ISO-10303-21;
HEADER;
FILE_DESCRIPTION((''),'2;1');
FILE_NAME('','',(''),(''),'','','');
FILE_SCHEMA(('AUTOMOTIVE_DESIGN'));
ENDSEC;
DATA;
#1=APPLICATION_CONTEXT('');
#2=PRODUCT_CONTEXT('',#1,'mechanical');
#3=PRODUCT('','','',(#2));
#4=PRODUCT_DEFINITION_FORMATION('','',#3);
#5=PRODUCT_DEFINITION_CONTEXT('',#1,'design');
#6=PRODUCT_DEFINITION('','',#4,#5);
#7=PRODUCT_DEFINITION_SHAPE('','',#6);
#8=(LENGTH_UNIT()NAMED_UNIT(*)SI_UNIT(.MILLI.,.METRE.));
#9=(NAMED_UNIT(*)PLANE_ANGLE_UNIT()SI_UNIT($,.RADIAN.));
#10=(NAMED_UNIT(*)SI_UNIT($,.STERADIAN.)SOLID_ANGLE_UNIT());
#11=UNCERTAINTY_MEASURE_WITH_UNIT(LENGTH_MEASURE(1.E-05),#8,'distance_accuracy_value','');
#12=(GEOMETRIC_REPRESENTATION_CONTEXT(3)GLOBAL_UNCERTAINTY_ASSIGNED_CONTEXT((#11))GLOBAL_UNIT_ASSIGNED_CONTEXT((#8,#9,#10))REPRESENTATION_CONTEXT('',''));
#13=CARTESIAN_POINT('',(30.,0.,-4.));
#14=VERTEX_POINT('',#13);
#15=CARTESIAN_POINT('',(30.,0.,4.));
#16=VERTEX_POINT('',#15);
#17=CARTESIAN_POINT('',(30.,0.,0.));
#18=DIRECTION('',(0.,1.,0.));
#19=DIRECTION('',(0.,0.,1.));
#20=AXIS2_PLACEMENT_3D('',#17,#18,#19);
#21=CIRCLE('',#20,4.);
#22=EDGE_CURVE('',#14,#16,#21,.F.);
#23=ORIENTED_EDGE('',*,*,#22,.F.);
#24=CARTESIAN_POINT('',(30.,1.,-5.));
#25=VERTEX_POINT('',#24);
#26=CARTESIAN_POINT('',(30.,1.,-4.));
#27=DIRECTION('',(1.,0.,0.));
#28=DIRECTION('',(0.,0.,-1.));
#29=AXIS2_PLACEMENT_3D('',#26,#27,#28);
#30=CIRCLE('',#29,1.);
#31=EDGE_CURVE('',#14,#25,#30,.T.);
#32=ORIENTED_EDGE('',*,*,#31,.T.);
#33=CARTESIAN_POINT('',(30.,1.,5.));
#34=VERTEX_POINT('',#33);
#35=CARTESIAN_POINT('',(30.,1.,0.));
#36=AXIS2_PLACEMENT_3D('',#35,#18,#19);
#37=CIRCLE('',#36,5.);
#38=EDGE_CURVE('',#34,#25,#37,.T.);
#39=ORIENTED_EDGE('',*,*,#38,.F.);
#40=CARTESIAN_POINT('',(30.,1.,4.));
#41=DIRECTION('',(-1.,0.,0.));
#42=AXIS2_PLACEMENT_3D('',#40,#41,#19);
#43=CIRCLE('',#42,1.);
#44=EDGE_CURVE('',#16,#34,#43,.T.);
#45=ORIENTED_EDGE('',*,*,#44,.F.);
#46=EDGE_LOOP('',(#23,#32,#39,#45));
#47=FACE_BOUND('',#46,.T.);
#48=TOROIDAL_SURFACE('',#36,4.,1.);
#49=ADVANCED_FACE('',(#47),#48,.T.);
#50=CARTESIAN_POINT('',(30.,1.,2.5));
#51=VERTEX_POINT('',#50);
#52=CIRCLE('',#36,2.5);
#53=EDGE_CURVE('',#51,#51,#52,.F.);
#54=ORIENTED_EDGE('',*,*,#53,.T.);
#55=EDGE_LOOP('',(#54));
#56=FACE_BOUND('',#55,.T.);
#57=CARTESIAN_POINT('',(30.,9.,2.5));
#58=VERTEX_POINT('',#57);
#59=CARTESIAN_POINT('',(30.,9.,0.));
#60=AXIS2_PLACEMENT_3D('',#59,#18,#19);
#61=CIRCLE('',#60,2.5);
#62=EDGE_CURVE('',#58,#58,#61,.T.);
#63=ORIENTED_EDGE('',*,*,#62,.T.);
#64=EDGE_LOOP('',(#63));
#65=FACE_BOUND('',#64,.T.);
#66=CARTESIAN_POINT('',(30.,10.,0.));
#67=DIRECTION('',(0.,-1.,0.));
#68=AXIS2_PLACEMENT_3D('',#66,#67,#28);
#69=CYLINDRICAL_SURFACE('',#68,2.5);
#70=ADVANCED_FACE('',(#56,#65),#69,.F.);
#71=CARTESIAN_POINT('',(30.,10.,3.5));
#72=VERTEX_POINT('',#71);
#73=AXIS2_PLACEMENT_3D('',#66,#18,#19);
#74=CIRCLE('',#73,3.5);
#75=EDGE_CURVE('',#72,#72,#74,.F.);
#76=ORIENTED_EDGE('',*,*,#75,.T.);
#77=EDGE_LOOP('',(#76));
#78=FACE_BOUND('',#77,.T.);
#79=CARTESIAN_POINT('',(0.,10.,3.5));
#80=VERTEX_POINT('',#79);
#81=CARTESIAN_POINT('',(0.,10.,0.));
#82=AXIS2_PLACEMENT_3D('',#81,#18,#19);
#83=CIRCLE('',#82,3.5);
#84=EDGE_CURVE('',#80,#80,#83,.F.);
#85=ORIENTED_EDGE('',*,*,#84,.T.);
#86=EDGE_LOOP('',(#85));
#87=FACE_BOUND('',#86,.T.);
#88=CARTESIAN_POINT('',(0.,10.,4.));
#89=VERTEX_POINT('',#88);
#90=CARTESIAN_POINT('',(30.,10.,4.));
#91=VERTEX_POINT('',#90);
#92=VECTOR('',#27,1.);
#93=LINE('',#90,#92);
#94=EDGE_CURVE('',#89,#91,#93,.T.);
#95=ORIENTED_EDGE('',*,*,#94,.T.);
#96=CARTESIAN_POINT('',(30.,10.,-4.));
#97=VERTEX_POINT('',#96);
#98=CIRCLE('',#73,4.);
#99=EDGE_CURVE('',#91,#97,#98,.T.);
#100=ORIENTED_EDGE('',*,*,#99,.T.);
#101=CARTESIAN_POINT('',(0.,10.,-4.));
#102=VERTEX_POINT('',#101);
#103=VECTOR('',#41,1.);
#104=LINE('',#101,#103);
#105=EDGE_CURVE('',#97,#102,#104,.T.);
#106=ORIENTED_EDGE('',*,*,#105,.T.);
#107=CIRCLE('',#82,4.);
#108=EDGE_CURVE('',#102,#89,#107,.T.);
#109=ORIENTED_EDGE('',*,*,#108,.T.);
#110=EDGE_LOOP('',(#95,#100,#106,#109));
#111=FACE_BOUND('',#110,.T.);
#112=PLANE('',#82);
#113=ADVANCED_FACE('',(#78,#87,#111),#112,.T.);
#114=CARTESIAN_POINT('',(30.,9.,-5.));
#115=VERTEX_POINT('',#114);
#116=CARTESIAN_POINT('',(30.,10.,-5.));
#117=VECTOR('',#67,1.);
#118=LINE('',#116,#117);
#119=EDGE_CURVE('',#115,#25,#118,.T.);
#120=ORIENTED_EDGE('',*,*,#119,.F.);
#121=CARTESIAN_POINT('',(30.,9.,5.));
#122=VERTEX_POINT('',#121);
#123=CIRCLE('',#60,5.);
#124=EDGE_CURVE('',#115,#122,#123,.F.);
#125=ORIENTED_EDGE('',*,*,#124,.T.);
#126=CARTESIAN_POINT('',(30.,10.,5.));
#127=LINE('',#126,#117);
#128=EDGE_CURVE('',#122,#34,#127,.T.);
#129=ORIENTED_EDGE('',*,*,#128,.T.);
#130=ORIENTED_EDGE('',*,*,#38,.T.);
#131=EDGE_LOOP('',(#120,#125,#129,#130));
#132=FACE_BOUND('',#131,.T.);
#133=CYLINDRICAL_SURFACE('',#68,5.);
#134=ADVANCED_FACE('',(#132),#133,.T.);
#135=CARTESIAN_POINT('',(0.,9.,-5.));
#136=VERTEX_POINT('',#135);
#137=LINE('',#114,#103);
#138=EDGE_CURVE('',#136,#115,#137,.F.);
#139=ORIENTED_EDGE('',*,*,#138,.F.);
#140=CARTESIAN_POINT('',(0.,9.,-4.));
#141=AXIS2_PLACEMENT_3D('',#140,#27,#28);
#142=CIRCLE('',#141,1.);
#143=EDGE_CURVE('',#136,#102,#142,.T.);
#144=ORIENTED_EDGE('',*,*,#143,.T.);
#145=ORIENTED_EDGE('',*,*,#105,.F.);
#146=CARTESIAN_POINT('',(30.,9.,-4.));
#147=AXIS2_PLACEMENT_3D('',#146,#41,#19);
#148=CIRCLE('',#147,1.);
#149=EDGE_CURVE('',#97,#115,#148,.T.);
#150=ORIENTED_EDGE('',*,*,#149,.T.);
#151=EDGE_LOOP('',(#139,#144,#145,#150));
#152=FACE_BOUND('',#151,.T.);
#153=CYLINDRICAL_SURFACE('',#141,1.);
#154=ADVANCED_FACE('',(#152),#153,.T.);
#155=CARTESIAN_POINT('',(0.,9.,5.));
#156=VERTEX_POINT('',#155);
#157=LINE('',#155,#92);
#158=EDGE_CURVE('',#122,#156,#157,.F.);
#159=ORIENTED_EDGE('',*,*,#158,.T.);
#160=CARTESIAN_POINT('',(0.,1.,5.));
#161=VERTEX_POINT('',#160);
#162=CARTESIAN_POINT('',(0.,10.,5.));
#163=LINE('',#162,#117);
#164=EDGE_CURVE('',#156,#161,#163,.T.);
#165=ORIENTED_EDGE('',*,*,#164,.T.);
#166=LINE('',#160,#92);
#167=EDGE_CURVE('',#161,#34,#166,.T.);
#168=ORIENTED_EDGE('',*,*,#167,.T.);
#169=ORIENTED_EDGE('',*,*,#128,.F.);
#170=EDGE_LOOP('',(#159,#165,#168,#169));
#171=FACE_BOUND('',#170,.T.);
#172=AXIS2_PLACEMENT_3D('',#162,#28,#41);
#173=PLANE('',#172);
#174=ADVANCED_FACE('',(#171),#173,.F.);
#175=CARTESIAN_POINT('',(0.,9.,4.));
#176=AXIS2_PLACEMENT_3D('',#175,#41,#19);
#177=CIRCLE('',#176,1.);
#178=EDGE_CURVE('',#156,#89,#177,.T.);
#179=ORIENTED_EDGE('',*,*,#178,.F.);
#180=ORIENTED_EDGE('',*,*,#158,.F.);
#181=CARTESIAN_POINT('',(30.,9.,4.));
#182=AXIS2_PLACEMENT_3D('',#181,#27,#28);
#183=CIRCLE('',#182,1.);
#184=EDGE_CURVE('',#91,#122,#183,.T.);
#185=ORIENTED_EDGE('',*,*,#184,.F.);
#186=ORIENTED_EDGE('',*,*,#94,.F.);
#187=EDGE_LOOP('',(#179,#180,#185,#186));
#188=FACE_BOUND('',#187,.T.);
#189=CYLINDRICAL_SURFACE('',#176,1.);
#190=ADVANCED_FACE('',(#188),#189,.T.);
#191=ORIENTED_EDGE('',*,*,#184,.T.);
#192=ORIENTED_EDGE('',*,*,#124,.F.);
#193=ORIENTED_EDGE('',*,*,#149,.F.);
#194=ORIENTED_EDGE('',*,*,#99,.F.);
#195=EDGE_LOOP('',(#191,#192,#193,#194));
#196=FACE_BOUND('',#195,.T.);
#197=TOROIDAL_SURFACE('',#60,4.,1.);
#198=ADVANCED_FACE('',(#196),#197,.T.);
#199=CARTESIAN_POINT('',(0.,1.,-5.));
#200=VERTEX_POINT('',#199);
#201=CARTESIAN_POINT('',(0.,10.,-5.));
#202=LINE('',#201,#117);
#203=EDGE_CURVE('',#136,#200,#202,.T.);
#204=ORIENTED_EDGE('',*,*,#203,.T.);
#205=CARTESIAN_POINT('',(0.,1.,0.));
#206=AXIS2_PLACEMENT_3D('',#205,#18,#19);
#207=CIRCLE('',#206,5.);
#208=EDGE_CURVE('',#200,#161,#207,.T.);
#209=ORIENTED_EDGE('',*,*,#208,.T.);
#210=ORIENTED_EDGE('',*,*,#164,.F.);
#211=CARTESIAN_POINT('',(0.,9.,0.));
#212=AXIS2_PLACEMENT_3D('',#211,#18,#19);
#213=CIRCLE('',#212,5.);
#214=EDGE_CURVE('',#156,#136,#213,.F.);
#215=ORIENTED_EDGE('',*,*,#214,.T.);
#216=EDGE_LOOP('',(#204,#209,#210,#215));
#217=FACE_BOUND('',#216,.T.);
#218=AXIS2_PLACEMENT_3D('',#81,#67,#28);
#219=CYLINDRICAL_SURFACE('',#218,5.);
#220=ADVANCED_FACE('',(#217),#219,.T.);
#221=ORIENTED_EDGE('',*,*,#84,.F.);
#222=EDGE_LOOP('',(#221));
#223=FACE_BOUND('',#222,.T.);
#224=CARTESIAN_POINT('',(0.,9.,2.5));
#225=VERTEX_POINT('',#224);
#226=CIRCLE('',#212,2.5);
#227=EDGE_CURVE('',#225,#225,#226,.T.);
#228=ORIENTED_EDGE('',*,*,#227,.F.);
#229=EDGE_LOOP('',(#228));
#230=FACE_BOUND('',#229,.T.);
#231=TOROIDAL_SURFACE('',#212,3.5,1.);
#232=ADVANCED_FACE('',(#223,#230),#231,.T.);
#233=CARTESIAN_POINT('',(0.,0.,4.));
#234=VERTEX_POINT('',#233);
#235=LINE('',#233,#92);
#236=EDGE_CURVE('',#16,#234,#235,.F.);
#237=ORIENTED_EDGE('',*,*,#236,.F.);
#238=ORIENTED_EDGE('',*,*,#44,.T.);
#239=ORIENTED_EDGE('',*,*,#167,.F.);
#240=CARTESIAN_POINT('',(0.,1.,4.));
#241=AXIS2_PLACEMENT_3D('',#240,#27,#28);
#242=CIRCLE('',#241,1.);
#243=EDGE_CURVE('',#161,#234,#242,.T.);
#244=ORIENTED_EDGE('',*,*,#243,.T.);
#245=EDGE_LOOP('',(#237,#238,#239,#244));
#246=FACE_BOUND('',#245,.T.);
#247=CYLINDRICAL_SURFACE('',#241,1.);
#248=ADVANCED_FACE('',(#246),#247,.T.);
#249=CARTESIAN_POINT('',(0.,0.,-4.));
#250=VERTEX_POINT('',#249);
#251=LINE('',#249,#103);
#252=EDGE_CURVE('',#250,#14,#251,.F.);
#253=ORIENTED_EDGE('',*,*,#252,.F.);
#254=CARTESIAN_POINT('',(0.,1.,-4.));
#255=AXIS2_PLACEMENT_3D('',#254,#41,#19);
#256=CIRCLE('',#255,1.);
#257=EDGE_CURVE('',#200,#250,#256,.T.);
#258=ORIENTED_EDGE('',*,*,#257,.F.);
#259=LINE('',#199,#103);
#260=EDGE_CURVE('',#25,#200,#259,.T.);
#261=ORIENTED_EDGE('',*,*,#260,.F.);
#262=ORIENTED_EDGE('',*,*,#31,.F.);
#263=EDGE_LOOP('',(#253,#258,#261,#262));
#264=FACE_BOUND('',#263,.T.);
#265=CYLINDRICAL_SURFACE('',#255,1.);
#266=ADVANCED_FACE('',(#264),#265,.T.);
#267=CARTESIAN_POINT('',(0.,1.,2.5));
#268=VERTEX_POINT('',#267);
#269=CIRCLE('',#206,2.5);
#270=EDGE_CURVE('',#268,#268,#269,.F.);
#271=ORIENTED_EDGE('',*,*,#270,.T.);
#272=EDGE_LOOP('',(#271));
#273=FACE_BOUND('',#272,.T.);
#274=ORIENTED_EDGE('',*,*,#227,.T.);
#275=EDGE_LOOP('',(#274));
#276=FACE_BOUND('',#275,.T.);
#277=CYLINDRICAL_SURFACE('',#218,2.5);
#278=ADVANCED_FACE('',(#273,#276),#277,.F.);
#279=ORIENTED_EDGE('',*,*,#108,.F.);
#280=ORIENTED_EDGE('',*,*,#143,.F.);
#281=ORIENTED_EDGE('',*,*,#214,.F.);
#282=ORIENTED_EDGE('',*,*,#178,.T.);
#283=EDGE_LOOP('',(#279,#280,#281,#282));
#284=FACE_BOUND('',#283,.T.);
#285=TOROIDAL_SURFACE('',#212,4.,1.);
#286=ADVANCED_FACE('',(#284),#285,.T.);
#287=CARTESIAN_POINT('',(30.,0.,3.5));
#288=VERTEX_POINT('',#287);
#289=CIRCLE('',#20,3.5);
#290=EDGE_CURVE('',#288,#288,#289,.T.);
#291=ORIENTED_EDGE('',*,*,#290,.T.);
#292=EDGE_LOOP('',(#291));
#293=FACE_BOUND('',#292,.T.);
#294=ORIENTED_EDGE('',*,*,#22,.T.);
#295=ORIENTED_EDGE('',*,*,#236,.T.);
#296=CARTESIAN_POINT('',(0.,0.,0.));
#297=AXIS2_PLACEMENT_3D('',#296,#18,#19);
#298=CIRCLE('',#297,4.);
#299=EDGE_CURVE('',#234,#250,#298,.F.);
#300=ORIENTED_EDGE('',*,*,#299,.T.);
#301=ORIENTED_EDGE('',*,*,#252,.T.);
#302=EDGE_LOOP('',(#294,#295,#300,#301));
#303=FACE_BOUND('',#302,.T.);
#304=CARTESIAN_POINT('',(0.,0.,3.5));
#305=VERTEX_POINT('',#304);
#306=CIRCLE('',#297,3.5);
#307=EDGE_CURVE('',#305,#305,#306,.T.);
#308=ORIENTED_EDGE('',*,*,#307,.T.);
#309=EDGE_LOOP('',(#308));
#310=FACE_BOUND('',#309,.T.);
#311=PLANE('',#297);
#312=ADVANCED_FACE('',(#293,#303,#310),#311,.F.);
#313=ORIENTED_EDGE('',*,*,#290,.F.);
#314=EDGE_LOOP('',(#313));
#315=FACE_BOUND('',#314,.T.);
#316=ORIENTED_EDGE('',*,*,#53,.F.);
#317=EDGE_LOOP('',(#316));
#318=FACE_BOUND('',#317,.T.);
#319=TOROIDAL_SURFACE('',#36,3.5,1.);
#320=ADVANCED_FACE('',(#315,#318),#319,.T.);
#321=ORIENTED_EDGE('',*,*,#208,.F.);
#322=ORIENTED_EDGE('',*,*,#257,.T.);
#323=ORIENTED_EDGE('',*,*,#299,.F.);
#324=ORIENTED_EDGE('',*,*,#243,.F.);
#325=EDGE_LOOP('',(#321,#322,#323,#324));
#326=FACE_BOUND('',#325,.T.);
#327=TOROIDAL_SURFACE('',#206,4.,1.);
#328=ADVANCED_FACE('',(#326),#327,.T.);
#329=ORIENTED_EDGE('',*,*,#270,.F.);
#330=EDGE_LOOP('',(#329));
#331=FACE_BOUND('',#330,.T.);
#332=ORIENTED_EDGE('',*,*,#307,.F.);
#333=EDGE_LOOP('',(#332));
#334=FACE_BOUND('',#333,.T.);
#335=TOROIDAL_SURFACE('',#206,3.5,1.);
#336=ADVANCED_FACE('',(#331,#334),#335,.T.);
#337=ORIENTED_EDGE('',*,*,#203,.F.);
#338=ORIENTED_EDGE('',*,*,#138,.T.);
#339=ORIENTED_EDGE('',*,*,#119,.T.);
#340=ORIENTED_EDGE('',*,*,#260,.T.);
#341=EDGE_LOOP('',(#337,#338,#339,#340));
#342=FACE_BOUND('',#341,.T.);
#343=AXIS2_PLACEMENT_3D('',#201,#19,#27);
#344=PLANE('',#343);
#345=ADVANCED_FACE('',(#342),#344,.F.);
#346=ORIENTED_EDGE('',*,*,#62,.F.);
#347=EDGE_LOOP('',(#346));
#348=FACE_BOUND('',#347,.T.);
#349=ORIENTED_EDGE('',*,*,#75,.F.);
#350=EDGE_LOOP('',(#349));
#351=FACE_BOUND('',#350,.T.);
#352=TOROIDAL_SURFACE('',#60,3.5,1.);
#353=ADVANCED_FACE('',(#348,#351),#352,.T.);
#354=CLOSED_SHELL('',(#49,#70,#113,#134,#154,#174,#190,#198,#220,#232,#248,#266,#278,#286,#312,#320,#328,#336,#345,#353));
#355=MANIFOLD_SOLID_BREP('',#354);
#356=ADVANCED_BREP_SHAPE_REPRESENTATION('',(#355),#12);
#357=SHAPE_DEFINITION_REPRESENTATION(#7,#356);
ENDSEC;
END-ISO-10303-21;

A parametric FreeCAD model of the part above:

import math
import FreeCAD as App
import Part
import Sketcher
from FreeCAD import Vector
Q = App.Units.Quantity


def edges_at(feature, points):
    """Names of the edges that pass closest to the given points."""
    edges = feature.Shape.Edges
    near = lambda p: min(range(len(edges)), key=lambda i: edges[i].distToShape(Part.Vertex(*p))[0])
    return sorted({f"Edge{near(p) + 1}" for p in points})

doc = App.newDocument("Part")
body = doc.addObject("PartDesign::Body", "Body")

# Sketch on XZ plane
sketch1 = body.newObject("Sketcher::SketchObject", "Sketch")
sketch1.AttachmentSupport = (doc.getObject("XZ_Plane"), [""])
sketch1.MapMode = "FlatFace"
sketch1.addGeometry([
    Part.LineSegment(Vector(30, -5, 0), Vector(0, -5, 0)),  # 0
    Part.ArcOfCircle(Part.Circle(Vector(0, 0, 0), Vector(0, 0, 1), 5), math.radians(90), math.radians(270)),  # 1
    Part.LineSegment(Vector(0, 5, 0), Vector(30, 5, 0)),  # 2
    Part.ArcOfCircle(Part.Circle(Vector(30, 0, 0), Vector(0, 0, 1), 5), math.radians(-90), math.radians(90)),  # 3
    Part.Circle(Vector(30, 0, 0), Vector(0, 0, 1), 2.5),  # 4
    Part.Circle(Vector(0, 0, 0), Vector(0, 0, 1), 2.5),  # 5
], False)
sketch1.addConstraint([
    Sketcher.Constraint("Tangent", 0, 2, 1, 2),
    Sketcher.Constraint("Tangent", 1, 1, 2, 1),
    Sketcher.Constraint("Tangent", 2, 2, 3, 2),
    Sketcher.Constraint("Tangent", 3, 1, 0, 1),
    Sketcher.Constraint("Horizontal", 0),
    Sketcher.Constraint("Horizontal", 2),
    Sketcher.Constraint("Coincident", 1, 3, -1, 1),
    Sketcher.Constraint("Coincident", 5, 3, -1, 1),
    Sketcher.Constraint("Coincident", 4, 3, 3, 3),
    Sketcher.Constraint("Equal", 4, 5),
    Sketcher.Constraint("Diameter", 4, Q("5 mm")),
    Sketcher.Constraint("Radius", 1, Q("5 mm")),
    Sketcher.Constraint("DistanceX", 0, 2, 0, 1, Q("30 mm")),
])
pad1 = body.newObject("PartDesign::Pad", "Pad")
pad1.Profile = sketch1
pad1.Length = 10
pad1.Reversed = True
doc.recompute()

fillet = body.newObject("PartDesign::Fillet", "Fillet")
fillet.Base = (pad1, edges_at(pad1, [
    (-2.5, 0, 0),
    (-2.5, 10, 0),
    (35, 10, 0),
    (27.5, 0, 0),
    (27.5, 10, 0),
    (15, 10, -5),
    (-5, 10, 0),
    (15, 0, -5),
    (35, 0, 0),
    (15, 0, 5),
    (-5, 0, 0),
    (15, 10, 5),
]))
fillet.Radius = 1

doc.recompute()
